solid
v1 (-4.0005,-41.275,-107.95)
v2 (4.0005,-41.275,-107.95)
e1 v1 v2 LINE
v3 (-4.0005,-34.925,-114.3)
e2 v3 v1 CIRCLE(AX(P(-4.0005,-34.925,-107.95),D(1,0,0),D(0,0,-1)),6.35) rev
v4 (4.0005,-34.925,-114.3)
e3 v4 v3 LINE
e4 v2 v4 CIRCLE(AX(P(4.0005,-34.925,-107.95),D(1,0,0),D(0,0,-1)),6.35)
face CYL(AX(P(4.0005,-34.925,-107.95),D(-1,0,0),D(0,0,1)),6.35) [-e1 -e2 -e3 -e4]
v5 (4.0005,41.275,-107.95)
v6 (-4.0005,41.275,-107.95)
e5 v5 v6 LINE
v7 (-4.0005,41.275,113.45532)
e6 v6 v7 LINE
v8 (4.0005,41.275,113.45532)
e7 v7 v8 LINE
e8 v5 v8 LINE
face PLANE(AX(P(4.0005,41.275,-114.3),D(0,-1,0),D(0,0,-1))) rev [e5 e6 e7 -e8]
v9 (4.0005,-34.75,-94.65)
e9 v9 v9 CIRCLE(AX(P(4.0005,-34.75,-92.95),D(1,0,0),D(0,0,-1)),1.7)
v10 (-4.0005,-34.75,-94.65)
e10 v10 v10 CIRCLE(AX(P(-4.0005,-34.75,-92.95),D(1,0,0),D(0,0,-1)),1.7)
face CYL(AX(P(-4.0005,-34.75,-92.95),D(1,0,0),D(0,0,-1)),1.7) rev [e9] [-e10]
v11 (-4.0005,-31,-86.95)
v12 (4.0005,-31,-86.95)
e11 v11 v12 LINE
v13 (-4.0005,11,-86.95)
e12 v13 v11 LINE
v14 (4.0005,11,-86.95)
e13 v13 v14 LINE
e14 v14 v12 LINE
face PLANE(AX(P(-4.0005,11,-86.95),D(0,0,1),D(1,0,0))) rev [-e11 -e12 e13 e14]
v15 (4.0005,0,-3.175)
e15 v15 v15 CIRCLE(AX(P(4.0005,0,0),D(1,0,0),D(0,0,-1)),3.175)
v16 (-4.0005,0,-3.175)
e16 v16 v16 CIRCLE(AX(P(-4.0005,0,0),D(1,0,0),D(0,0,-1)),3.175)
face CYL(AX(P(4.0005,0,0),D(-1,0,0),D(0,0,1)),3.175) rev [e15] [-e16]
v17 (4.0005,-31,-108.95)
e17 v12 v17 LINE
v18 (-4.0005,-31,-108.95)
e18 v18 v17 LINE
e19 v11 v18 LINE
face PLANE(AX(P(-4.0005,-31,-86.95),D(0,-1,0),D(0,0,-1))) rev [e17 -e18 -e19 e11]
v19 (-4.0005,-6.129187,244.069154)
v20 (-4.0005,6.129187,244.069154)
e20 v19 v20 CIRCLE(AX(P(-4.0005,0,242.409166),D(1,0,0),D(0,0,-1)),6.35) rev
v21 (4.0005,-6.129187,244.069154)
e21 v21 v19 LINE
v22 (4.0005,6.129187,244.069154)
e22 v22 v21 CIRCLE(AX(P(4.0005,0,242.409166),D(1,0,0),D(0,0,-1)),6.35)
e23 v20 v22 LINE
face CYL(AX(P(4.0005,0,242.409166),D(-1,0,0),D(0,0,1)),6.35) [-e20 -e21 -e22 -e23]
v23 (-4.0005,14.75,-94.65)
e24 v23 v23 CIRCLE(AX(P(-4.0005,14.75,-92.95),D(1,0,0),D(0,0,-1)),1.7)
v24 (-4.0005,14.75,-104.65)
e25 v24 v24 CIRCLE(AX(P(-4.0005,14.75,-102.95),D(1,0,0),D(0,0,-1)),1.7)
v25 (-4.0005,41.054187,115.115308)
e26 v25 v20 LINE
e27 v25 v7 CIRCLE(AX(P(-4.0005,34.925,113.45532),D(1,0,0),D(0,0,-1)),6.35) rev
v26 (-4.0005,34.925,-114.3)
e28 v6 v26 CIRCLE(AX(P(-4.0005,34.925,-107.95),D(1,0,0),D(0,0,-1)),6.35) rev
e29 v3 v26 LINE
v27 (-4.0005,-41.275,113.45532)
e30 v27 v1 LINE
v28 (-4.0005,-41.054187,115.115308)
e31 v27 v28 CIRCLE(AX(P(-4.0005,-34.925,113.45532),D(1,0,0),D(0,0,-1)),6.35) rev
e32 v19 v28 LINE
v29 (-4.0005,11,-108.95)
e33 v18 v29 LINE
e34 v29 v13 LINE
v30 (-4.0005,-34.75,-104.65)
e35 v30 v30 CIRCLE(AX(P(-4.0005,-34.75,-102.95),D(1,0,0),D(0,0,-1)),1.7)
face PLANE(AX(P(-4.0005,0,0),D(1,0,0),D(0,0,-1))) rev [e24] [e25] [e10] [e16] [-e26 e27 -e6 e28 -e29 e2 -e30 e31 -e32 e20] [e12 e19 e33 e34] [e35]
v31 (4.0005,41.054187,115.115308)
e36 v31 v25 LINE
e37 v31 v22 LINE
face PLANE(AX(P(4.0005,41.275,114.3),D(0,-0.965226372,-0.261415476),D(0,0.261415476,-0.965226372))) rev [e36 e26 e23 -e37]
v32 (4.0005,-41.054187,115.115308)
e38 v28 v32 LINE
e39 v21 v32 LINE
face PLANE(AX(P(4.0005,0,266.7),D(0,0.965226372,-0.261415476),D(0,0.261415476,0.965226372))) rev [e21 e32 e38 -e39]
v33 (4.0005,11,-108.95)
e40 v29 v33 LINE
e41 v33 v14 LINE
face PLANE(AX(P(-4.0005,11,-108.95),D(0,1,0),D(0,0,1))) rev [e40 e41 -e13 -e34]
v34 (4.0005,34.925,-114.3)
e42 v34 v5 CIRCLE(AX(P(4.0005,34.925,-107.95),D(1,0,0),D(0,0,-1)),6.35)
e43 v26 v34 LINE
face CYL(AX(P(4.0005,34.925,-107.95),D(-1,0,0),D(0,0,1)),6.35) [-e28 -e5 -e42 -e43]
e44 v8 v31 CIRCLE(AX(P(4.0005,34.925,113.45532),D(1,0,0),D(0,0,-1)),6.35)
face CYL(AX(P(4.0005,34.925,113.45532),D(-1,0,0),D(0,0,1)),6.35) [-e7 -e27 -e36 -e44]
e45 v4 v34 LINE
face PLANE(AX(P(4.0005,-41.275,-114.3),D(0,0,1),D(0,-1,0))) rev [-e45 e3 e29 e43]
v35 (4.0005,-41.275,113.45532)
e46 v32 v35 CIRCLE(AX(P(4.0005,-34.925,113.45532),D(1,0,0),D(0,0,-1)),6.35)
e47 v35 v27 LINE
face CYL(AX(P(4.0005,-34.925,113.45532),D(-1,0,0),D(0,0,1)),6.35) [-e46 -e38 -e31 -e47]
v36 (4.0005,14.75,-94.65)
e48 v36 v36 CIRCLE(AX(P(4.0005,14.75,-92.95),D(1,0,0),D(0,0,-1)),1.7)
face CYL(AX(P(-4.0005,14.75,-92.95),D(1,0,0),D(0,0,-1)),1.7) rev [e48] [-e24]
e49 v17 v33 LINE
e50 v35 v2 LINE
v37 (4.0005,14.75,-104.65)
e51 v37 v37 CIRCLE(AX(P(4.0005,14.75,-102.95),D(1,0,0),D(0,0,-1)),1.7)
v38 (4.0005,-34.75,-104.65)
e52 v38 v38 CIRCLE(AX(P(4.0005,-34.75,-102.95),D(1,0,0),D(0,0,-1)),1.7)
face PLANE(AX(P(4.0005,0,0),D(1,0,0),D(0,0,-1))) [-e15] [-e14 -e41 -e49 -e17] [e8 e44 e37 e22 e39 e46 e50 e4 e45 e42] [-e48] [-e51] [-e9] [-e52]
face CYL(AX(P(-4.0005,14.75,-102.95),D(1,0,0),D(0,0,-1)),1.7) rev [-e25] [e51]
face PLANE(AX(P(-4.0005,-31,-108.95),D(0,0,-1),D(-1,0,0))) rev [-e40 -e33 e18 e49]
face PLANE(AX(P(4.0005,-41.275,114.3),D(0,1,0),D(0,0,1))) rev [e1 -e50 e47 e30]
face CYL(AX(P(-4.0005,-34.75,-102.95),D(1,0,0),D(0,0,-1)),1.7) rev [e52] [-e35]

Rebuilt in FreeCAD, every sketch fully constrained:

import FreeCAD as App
import Part
import Sketcher


def edges_at(feature, points):
    """Names of the edges that pass closest to the given points."""
    edges = feature.Shape.Edges
    near = lambda p: min(range(len(edges)), key=lambda i: edges[i].distToShape(Part.Vertex(*p))[0])
    return sorted({f"Edge{near(p) + 1}" for p in points})


def add_polygon(sketch, points):
    """Adds a closed chain of lines whose ends are joined by coincident constraints."""
    first, n = sketch.GeometryCount, len(points)
    for a, b in zip(points, points[1:] + points[:1]):
        sketch.addGeometry(Part.LineSegment(App.Vector(*a, 0), App.Vector(*b, 0)), False)
    for i in range(n):
        sketch.addConstraint(Sketcher.Constraint("Coincident", first + i, 2, first + (i + 1) % n, 1))

doc = App.newDocument("Part")
body = doc.addObject("PartDesign::Body", "Body")

sketch1 = body.newObject("Sketcher::SketchObject", "Sketch")
sketch1.AttachmentSupport = (doc.getObject("YZ_Plane"), [""])
sketch1.MapMode = "FlatFace"
add_polygon(sketch1, [(-41.3, 114.3), (-41.3, -114.3), (41.3, -114.3), (41.3, 114.3), (0, 266.7)])
sketch1.addGeometry(Part.Circle(App.Vector(0, 0, 0), App.Vector(0, 0, 1), 3.2), False)
sketch1.addConstraint(Sketcher.Constraint("Vertical", 0))
sketch1.addConstraint(Sketcher.Constraint("Horizontal", 1))
sketch1.addConstraint(Sketcher.Constraint("Vertical", 2))
sketch1.addConstraint(Sketcher.Constraint("Coincident", 5, 3, -1, 1))
sketch1.addConstraint(Sketcher.Constraint("Symmetric", 0, 2, 2, 2, -1, 1))
sketch1.addConstraint(Sketcher.Constraint("PointOnObject", 3, 2, -2))
sketch1.addConstraint(Sketcher.Constraint("Horizontal", 2, 2, 4, 2))
sketch1.addConstraint(Sketcher.Constraint("Diameter", 5, 6.35))
sketch1.addConstraint(Sketcher.Constraint("DistanceY", 0, 2, 0, 1, 228.6))
sketch1.addConstraint(Sketcher.Constraint("DistanceY", 0, 2, 3, 2, 381.0))
sketch1.addConstraint(Sketcher.Constraint("DistanceX", 1, 1, 1, 2, 82.55))
pad1 = body.newObject("PartDesign::Pad", "Pad")
pad1.Profile = sketch1
pad1.Length = 8.001
pad1.Midplane = True
doc.recompute()

fillet = body.newObject("PartDesign::Fillet", "Fillet")
fillet.Base = (pad1, edges_at(pad1, [
    (0, 0, 266.7),
    (0, 41.275, 114.3),
    (0, 41.275, -114.3),
    (0, -41.275, -114.3),
    (0, -41.275, 114.3),
]))
fillet.Radius = 6.35

sketch2 = body.newObject("Sketcher::SketchObject", "Sketch001")
sketch2.AttachmentSupport = (doc.getObject("YZ_Plane"), [""])
sketch2.MapMode = "FlatFace"
sketch2.AttachmentOffset = App.Placement(App.Vector(0, 0, 4.0005), App.Rotation())
sketch2.addGeometry(Part.Circle(App.Vector(-34.8, -93, 0), App.Vector(0, 0, 1), 1.7), False)
sketch2.addGeometry(Part.Circle(App.Vector(-34.8, -103, 0), App.Vector(0, 0, 1), 1.7), False)
sketch2.addGeometry(Part.Circle(App.Vector(14.8, -93, 0), App.Vector(0, 0, 1), 1.7), False)
sketch2.addGeometry(Part.Circle(App.Vector(14.8, -103, 0), App.Vector(0, 0, 1), 1.7), False)
sketch2.addConstraint(Sketcher.Constraint("Equal", 0, 1))
sketch2.addConstraint(Sketcher.Constraint("Equal", 1, 2))
sketch2.addConstraint(Sketcher.Constraint("Equal", 2, 3))
sketch2.addConstraint(Sketcher.Constraint("Horizontal", 0, 3, 2, 3))
sketch2.addConstraint(Sketcher.Constraint("Horizontal", 1, 3, 3, 3))
sketch2.addConstraint(Sketcher.Constraint("Vertical", 0, 3, 1, 3))
sketch2.addConstraint(Sketcher.Constraint("Vertical", 2, 3, 3, 3))
sketch2.addConstraint(Sketcher.Constraint("Diameter", 0, 3.4))
sketch2.addConstraint(Sketcher.Constraint("DistanceY", 1, 3, 0, 3, 10.0))
sketch2.addConstraint(Sketcher.Constraint("DistanceX", 0, 3, 2, 3, 49.5))
sketch2.addConstraint(Sketcher.Constraint("DistanceX", 0, 3, -1, 1, 34.75))
sketch2.addConstraint(Sketcher.Constraint("DistanceY", 0, 3, -1, 1, 92.95))
pocket1 = body.newObject("PartDesign::Pocket", "Pocket")
pocket1.Profile = sketch2
pocket1.Type = "ThroughAll"

sketch3 = body.newObject("Sketcher::SketchObject", "Sketch002")
sketch3.AttachmentSupport = (doc.getObject("YZ_Plane"), [""])
sketch3.MapMode = "FlatFace"
sketch3.AttachmentOffset = App.Placement(App.Vector(0, 0, 4.0005), App.Rotation())
add_polygon(sketch3, [(-31, -87), (-31, -109), (11, -109), (11, -87)])
sketch3.addConstraint(Sketcher.Constraint("Vertical", 0))
sketch3.addConstraint(Sketcher.Constraint("Horizontal", 1))
sketch3.addConstraint(Sketcher.Constraint("Vertical", 2))
sketch3.addConstraint(Sketcher.Constraint("Horizontal", 3))
sketch3.addConstraint(Sketcher.Constraint("DistanceX", 1, 1, 1, 2, 42.0))
sketch3.addConstraint(Sketcher.Constraint("DistanceY", 0, 2, 0, 1, 22.0))
sketch3.addConstraint(Sketcher.Constraint("DistanceX", 0, 2, -1, 1, 31.0))
sketch3.addConstraint(Sketcher.Constraint("DistanceY", 0, 2, -1, 1, 108.95))
pocket2 = body.newObject("PartDesign::Pocket", "Pocket001")
pocket2.Profile = sketch3
pocket2.Type = "ThroughAll"

doc.recompute()
